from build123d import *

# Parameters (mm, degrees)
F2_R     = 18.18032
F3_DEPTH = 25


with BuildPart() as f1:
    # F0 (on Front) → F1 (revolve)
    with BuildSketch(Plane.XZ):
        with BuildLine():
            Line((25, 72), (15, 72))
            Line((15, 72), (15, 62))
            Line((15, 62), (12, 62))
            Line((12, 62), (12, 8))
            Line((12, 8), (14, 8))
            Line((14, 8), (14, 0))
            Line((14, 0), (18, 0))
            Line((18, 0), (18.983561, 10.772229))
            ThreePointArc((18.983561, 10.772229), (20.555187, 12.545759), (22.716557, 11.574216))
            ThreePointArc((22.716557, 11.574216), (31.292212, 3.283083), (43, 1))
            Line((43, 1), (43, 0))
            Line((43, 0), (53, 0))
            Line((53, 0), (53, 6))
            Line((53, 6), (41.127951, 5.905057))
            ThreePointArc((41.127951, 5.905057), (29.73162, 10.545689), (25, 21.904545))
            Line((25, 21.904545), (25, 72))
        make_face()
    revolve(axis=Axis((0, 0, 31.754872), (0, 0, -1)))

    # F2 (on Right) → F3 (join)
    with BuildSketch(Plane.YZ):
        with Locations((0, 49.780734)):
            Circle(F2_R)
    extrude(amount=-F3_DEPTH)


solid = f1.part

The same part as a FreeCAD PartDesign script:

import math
import FreeCAD as App
import Part
import Sketcher

V = App.Vector
Q = App.Units.Quantity

doc = App.newDocument("Part")
body = doc.addObject("PartDesign::Body", "Body")

# Sketch on XZ plane
sketch1 = body.newObject("Sketcher::SketchObject", "Sketch")
sketch1.AttachmentSupport = (doc.getObject("XZ_Plane"), [""])
sketch1.MapMode = "FlatFace"
sketch1.addGeometry([
    Part.LineSegment(V(25, 72, 0), V(15, 72, 0)),  # 0
    Part.LineSegment(V(15, 72, 0), V(15, 62, 0)),  # 1
    Part.LineSegment(V(15, 62, 0), V(12, 62, 0)),  # 2
    Part.LineSegment(V(12, 62, 0), V(12, 8, 0)),  # 3
    Part.LineSegment(V(12, 8, 0), V(14, 8, 0)),  # 4
    Part.LineSegment(V(14, 8, 0), V(14, 0, 0)),  # 5
    Part.LineSegment(V(14, 0, 0), V(18, 0, 0)),  # 6
    Part.LineSegment(V(18, 0, 0), V(19, 10.8, 0)),  # 7
    Part.ArcOfCircle(Part.Circle(V(21, 10.6, 0), V(0, 0, 1), 2), math.radians(29), math.radians(175)),  # 8
    Part.ArcOfCircle(Part.Circle(V(41, 21.9, 0), V(0, 0, 1), 21), math.radians(-151), math.radians(-85)),  # 9
    Part.LineSegment(V(43, 1, 0), V(43, 0, 0)),  # 10
    Part.LineSegment(V(43, 0, 0), V(53, 0, 0)),  # 11
    Part.LineSegment(V(53, 0, 0), V(53, 6, 0)),  # 12
    Part.LineSegment(V(53, 6, 0), V(41.1, 5.9, 0)),  # 13
    Part.ArcOfCircle(Part.Circle(V(41, 21.9, 0), V(0, 0, 1), 16), math.radians(180), math.radians(270)),  # 14
    Part.LineSegment(V(25, 21.9, 0), V(25, 72, 0)),  # 15
], False)
sketch1.addConstraint([
    Sketcher.Constraint("Coincident", 0, 2, 1, 1),
    Sketcher.Constraint("Coincident", 1, 2, 2, 1),
    Sketcher.Constraint("Coincident", 2, 2, 3, 1),
    Sketcher.Constraint("Coincident", 3, 2, 4, 1),
    Sketcher.Constraint("Coincident", 4, 2, 5, 1),
    Sketcher.Constraint("Coincident", 5, 2, 6, 1),
    Sketcher.Constraint("Coincident", 6, 2, 7, 1),
    Sketcher.Constraint("Tangent", 7, 2, 8, 2),
    Sketcher.Constraint("Tangent", 8, 1, 9, 1),
    Sketcher.Constraint("Coincident", 9, 2, 10, 1),
    Sketcher.Constraint("Coincident", 10, 2, 11, 1),
    Sketcher.Constraint("Coincident", 11, 2, 12, 1),
    Sketcher.Constraint("Coincident", 12, 2, 13, 1),
    Sketcher.Constraint("Tangent", 13, 2, 14, 2),
    Sketcher.Constraint("Tangent", 14, 1, 15, 1),
    Sketcher.Constraint("Coincident", 15, 2, 0, 1),
    Sketcher.Constraint("Horizontal", 0),
    Sketcher.Constraint("Vertical", 1),
    Sketcher.Constraint("Horizontal", 2),
    Sketcher.Constraint("Vertical", 3),
    Sketcher.Constraint("Horizontal", 4),
    Sketcher.Constraint("Vertical", 5),
    Sketcher.Constraint("Horizontal", 6),
    Sketcher.Constraint("Vertical", 10),
    Sketcher.Constraint("Horizontal", 11),
    Sketcher.Constraint("Vertical", 12),
    Sketcher.Constraint("Vertical", 15),
    Sketcher.Constraint("Coincident", 14, 3, 9, 3),
    Sketcher.Constraint("PointOnObject", 5, 2, -1),
    Sketcher.Constraint("PointOnObject", 10, 2, -1),
    Sketcher.Constraint("Equal", 0, 11),
    Sketcher.Constraint("Equal", 11, 1),
    Sketcher.Constraint("Radius", 8, Q("2 mm")),
    Sketcher.Constraint("Radius", 9, Q("21 mm")),
    Sketcher.Constraint("Radius", 14, Q("16 mm")),
    Sketcher.Constraint("DistanceX", 0, 2, 0, 1, Q("10 mm")),
    Sketcher.Constraint("DistanceX", 2, 2, 2, 1, Q("3 mm")),
    Sketcher.Constraint("DistanceX", 4, 1, 4, 2, Q("2 mm")),
    Sketcher.Constraint("DistanceX", 6, 1, 6, 2, Q("4 mm")),
    Sketcher.Constraint("DistanceY", 3, 2, 3, 1, Q("54 mm")),
    Sketcher.Constraint("DistanceY", 5, 2, 5, 1, Q("8 mm")),
    Sketcher.Constraint("DistanceY", 10, 2, 10, 1, Q("1 mm")),
    Sketcher.Constraint("DistanceY", 12, 1, 12, 2, Q("6 mm")),
    Sketcher.Constraint("DistanceX", -1, 1, 9, 3, Q("41 mm")),
    Sketcher.Constraint("DistanceX", -1, 1, 9, 2, Q("43 mm")),
    Sketcher.Constraint("DistanceX", -1, 1, 7, 2, Q("18.983561 mm")),
])
revolution = body.newObject("PartDesign::Revolution", "Revolution")
revolution.Profile = sketch1
revolution.ReferenceAxis = (sketch1, ["V_Axis"])
revolution.Angle = 360

# Sketch on YZ plane
sketch2 = body.newObject("Sketcher::SketchObject", "Sketch001")
sketch2.AttachmentSupport = (doc.getObject("YZ_Plane"), [""])
sketch2.MapMode = "FlatFace"
sketch2.addGeometry(Part.Circle(V(0, 50, 0), V(0, 0, 1), 18), False)
sketch2.addConstraint([
    Sketcher.Constraint("PointOnObject", 0, 3, -2),
    Sketcher.Constraint("Diameter", 0, Q("36.36064 mm")),
    Sketcher.Constraint("DistanceY", -1, 1, 0, 3, Q("49.780734 mm")),
])
pad1 = body.newObject("PartDesign::Pad", "Pad")
pad1.Profile = sketch2
pad1.Length = 25
pad1.Reversed = True

doc.recompute()
